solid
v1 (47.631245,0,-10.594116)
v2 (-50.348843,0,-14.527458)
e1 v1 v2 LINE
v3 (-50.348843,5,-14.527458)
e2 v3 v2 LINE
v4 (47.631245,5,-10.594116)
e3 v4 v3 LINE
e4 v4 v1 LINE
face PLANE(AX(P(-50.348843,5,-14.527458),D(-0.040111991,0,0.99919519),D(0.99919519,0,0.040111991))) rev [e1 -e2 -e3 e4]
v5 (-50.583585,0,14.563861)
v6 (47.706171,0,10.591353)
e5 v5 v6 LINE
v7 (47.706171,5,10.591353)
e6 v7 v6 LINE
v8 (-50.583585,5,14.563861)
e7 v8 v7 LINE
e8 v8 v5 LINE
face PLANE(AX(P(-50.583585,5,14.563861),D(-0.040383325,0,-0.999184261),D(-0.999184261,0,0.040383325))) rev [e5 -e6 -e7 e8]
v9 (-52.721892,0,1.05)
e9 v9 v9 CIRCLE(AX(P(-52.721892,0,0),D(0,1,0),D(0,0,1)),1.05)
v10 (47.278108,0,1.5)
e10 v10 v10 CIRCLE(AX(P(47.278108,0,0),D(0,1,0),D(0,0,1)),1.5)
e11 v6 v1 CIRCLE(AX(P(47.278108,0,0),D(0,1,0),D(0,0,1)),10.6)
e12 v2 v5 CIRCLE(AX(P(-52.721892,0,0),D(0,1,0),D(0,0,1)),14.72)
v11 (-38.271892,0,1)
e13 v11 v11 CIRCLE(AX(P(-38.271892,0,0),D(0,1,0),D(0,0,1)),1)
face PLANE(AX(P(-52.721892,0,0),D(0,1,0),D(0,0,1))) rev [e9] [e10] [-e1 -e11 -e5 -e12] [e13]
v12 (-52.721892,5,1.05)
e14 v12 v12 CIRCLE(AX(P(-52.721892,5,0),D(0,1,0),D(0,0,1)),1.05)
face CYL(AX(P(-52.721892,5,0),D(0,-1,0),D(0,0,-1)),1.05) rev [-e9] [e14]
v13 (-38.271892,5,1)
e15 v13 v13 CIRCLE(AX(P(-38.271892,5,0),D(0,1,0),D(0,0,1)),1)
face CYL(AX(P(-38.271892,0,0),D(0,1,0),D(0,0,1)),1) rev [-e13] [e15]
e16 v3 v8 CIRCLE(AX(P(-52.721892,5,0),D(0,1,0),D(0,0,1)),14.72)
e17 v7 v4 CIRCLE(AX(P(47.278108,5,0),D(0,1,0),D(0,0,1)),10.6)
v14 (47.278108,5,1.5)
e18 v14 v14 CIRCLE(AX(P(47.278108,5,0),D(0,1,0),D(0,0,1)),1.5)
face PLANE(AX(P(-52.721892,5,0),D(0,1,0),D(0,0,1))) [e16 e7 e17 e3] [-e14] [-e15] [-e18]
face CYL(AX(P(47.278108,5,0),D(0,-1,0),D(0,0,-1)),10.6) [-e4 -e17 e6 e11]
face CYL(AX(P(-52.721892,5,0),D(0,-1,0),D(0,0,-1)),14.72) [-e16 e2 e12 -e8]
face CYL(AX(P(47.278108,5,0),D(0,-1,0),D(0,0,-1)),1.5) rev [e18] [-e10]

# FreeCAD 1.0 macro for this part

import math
import FreeCAD as App
import Part
import Sketcher

V = App.Vector

doc = App.newDocument("Part")
body = doc.addObject("PartDesign::Body", "Body")

# Sketch on XZ plane
sketch1 = body.newObject("Sketcher::SketchObject", "Sketch")
sketch1.AttachmentSupport = (doc.getObject("XZ_Plane"), [""])
sketch1.MapMode = "FlatFace"
sketch1.addGeometry([
    Part.LineSegment(V(47.6, -10.6, 0), V(-50.3, -14.5, 0)),  # 0
    Part.ArcOfCircle(Part.Circle(V(-52.7, 0, 0), V(0, 0, 1), 14.7), math.radians(82), math.radians(279)),  # 1
    Part.LineSegment(V(-50.6, 14.6, 0), V(47.7, 10.6, 0)),  # 2
    Part.ArcOfCircle(Part.Circle(V(47.3, 0, 0), V(0, 0, 1), 10.6), math.radians(-88), math.radians(88)),  # 3
    Part.Circle(V(47.3, 0, 0), V(0, 0, 1), 1.5),  # 4
    Part.Circle(V(-52.7, 0, 0), V(0, 0, 1), 1.1),  # 5
], False)
sketch1.addConstraint([
    Sketcher.Constraint("Coincident", 0, 2, 1, 2),
    Sketcher.Constraint("Coincident", 1, 1, 2, 1),
    Sketcher.Constraint("Tangent", 2, 2, 3, 2),
    Sketcher.Constraint("Coincident", 3, 1, 0, 1),
    Sketcher.Constraint("Coincident", 4, 3, 3, 3),
    Sketcher.Constraint("Coincident", 5, 3, 1, 3),
    Sketcher.Constraint("PointOnObject", 1, 3, -1),
    Sketcher.Constraint("PointOnObject", 3, 3, -1),
    Sketcher.Constraint("Diameter", 4, 3.0),
    Sketcher.Constraint("Diameter", 5, 2.1),
    Sketcher.Constraint("Radius", 3, 10.6),
    Sketcher.Constraint("Radius", 1, 14.72),
    Sketcher.Constraint("DistanceX", 1, 3, 3, 3, 100.0),
    Sketcher.Constraint("Distance", 2, 98.370001),
    Sketcher.Constraint("DistanceX", 1, 3, -1, 1, 52.721892),
    Sketcher.Constraint("DistanceY", 0, 2, -1, 1, 14.527458),
    Sketcher.Constraint("DistanceY", 3, 1, 2, 2, 21.185469),
])
pad1 = body.newObject("PartDesign::Pad", "Pad")
pad1.Profile = sketch1
pad1.Length = 5
pad1.Reversed = True

# Sketch on XZ plane
sketch2 = body.newObject("Sketcher::SketchObject", "Sketch001")
sketch2.AttachmentSupport = (doc.getObject("XZ_Plane"), [""])
sketch2.MapMode = "FlatFace"
sketch2.AttachmentOffset = App.Placement(V(0, 0, -5), App.Rotation())
sketch2.addGeometry(Part.Circle(V(-38.3, 0, 0), V(0, 0, 1), 1), False)
sketch2.addConstraint([
    Sketcher.Constraint("PointOnObject", 0, 3, -1),
    Sketcher.Constraint("Diameter", 0, 2.0),
    Sketcher.Constraint("DistanceX", 0, 3, -1, 1, 38.271892),
])
pocket1 = body.newObject("PartDesign::Pocket", "Pocket")
pocket1.Profile = sketch2
pocket1.Type = "ThroughAll"
pocket1.Midplane = True

doc.recompute()
